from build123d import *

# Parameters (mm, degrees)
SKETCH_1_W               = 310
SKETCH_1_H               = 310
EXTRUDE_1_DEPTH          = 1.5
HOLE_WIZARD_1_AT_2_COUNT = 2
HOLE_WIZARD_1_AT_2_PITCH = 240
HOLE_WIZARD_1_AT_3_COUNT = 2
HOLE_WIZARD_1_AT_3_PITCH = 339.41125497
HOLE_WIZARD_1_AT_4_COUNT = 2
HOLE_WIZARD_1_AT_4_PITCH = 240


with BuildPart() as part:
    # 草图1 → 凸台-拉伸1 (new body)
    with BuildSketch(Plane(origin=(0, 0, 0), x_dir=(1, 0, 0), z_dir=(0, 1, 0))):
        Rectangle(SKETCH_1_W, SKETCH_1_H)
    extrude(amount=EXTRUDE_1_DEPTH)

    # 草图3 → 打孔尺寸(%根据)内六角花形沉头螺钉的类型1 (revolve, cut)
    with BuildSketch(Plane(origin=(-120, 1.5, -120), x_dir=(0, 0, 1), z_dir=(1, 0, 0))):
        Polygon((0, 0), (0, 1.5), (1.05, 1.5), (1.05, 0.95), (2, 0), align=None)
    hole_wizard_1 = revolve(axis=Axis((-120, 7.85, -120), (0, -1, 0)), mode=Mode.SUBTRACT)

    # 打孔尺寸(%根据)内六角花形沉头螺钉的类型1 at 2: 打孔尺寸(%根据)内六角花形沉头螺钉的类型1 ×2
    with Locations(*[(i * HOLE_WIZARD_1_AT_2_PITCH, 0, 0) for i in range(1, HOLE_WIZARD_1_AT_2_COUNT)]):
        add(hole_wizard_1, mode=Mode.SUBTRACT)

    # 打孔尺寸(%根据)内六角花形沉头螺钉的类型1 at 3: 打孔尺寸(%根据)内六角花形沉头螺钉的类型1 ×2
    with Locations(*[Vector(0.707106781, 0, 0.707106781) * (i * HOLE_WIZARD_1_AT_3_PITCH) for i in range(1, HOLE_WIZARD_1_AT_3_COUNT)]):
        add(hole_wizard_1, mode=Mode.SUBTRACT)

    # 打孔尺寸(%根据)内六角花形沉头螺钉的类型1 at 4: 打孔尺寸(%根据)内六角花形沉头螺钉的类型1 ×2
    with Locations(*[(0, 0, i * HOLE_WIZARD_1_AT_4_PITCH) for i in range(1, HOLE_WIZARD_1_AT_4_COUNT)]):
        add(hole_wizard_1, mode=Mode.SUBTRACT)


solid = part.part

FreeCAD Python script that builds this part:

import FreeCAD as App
import Part
import Sketcher
Q = App.Units.Quantity


def add_polygon(sketch, points):
    """Adds a closed chain of lines whose ends are joined by coincident constraints."""
    first, n = sketch.GeometryCount, len(points)
    for a, b in zip(points, points[1:] + points[:1]):
        sketch.addGeometry(Part.LineSegment(App.Vector(*a, 0), App.Vector(*b, 0)), False)
    for i in range(n):
        sketch.addConstraint(Sketcher.Constraint("Coincident", first + i, 2, first + (i + 1) % n, 1))

doc = App.newDocument("Part")
body = doc.addObject("PartDesign::Body", "Body")

# Sketch on XZ plane
sketch1 = doc.addObject("Sketcher::SketchObject", "Sketch")
body.addObject(sketch1)
sketch1.AttachmentSupport = (doc.XZ_Plane, [""])
sketch1.MapMode = "FlatFace"
add_polygon(sketch1, [(-155, -155), (-155, 155), (155, 155), (155, -155)])  # lines 0-3
sketch1.addConstraint([
    Sketcher.Constraint("Vertical", 0),
    Sketcher.Constraint("Horizontal", 1),
    Sketcher.Constraint("Vertical", 2),
    Sketcher.Constraint("Horizontal", 3),
    Sketcher.Constraint("Symmetric", 0, 2, 2, 2, -1, 1),
    Sketcher.Constraint("Equal", 3, 0),
    Sketcher.Constraint("DistanceX", 1, 1, 1, 2, 310.0),
])
pad1 = doc.addObject("PartDesign::Pad", "Pad")
body.addObject(pad1)
pad1.Profile = sketch1
pad1.Length = 1.5
pad1.Reversed = True

# Sketch on YZ plane
sketch2 = doc.addObject("Sketcher::SketchObject", "Sketch001")
body.addObject(sketch2)
sketch2.AttachmentSupport = (doc.YZ_Plane, [""])
sketch2.MapMode = "FlatFace"
sketch2.AttachmentOffset = App.Placement(App.Vector(0, 0, -120), App.Rotation())
add_polygon(sketch2, [(0, -120), (1.5, -120), (1.5, -118), (0.6, -119), (0, -119)])  # lines 0-4
sketch2.addGeometry(Part.LineSegment(App.Vector(1.5, -120, 0), App.Vector(0, -120, 0)), True)  # axis
sketch2.addConstraint([
    Sketcher.Constraint("Horizontal", 0),
    Sketcher.Constraint("Vertical", 1),
    Sketcher.Constraint("Horizontal", 3),
    Sketcher.Constraint("Vertical", 4),
    Sketcher.Constraint("Horizontal", 5),
    Sketcher.Constraint("Coincident", 5, 1, 0, 2),
    Sketcher.Constraint("PointOnObject", 3, 2, -2),
    Sketcher.Constraint("PointOnObject", 5, 2, -2),
    Sketcher.Constraint("DistanceY", 1, 1, 1, 2, 2.0),
    Sketcher.Constraint("Angle", 2, Q("-135 deg")),
    Sketcher.Constraint("DistanceX", 0, 1, 0, 2, 1.5),
    Sketcher.Constraint("DistanceY", 0, 2, -1, 1, 120.0),
    Sketcher.Constraint("DistanceX", 3, 2, 3, 1, 0.55),
])
groove = doc.addObject("PartDesign::Groove", "Groove")
body.addObject(groove)
groove.Profile = sketch2
groove.ReferenceAxis = (sketch2, ["Axis0"])
groove.Angle = 360
doc.recompute()

linearpattern = doc.addObject("PartDesign::LinearPattern", "LinearPattern")
body.addObject(linearpattern)
linearpattern.Originals = [groove]
linearpattern.Direction = (doc.X_Axis, [""])
linearpattern.Mode = "offset"
linearpattern.Offset = 240
linearpattern.Occurrences = 2
body.Tip = linearpattern
doc.recompute()

datumline = doc.addObject("PartDesign::Line", "DatumLine")
body.addObject(datumline)
datumline.Placement = App.Placement(App.Vector(0, 0, 0), App.Rotation(App.Vector(0, 0, 1), App.Vector(0.707106781, 0, 0.707106781)))
linearpattern2 = doc.addObject("PartDesign::LinearPattern", "LinearPattern001")
body.addObject(linearpattern2)
linearpattern2.Originals = [groove]
linearpattern2.Direction = (datumline, [""])
linearpattern2.Mode = "offset"
linearpattern2.Offset = 339.411255
linearpattern2.Occurrences = 2
body.Tip = linearpattern2
doc.recompute()

linearpattern3 = doc.addObject("PartDesign::LinearPattern", "LinearPattern002")
body.addObject(linearpattern3)
linearpattern3.Originals = [groove]
linearpattern3.Direction = (doc.Z_Axis, [""])
linearpattern3.Mode = "offset"
linearpattern3.Offset = 240
linearpattern3.Occurrences = 2
body.Tip = linearpattern3

doc.recompute()
